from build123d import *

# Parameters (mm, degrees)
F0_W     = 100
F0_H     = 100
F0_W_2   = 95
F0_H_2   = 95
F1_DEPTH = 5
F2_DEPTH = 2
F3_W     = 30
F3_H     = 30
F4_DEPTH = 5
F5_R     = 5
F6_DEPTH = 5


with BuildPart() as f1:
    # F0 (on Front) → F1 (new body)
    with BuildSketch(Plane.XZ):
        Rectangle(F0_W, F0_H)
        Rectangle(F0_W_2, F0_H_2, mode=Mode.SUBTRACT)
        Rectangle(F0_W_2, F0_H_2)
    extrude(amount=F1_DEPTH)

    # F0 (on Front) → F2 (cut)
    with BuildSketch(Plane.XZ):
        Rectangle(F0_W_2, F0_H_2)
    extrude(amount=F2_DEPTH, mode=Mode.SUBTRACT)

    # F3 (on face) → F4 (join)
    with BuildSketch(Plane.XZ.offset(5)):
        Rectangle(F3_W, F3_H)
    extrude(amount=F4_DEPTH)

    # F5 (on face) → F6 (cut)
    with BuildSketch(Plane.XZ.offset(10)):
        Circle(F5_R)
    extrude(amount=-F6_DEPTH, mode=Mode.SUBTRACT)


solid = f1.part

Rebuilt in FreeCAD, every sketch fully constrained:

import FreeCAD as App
import Part
import Sketcher
Q = App.Units.Quantity

doc = App.newDocument("Part")
params = doc.addObject("Spreadsheet::Sheet", "Params")
for row, (alias, value) in enumerate([
    ("sketch1_width", "100 mm"),
    ("pad1_length", "5 mm"),
    ("sketch2_width", "95 mm"),
    ("pocket1_length", "2 mm"),
    ("sketch3_width", "30 mm"),
    ("pad2_length", "5 mm"),
    ("sketch4_diameter", "10 mm"),
    ("pocket2_length", "5 mm"),
], start=1):
    params.set(f"A{row}", alias)
    params.set(f"B{row}", "=" + value)
    params.setAlias(f"B{row}", alias)

body = doc.addObject("PartDesign::Body", "Body")

# Sketch on XZ plane
sketch1 = body.newObject("Sketcher::SketchObject", "Sketch")
sketch1.AttachmentSupport = (doc.getObject("XZ_Plane"), [""])
sketch1.MapMode = "FlatFace"
sketch1.addGeometry([
    Part.LineSegment(App.Vector(-50, 50, 0), App.Vector(-50, -50, 0)),
    Part.LineSegment(App.Vector(-50, -50, 0), App.Vector(50, -50, 0)),
    Part.LineSegment(App.Vector(50, -50, 0), App.Vector(50, 50, 0)),
    Part.LineSegment(App.Vector(50, 50, 0), App.Vector(-50, 50, 0)),
], False)
sketch1.addConstraint([
    Sketcher.Constraint("Coincident", 0, 2, 1, 1),
    Sketcher.Constraint("Coincident", 1, 2, 2, 1),
    Sketcher.Constraint("Coincident", 2, 2, 3, 1),
    Sketcher.Constraint("Coincident", 3, 2, 0, 1),
    Sketcher.Constraint("Vertical", 0),
    Sketcher.Constraint("Horizontal", 1),
    Sketcher.Constraint("Vertical", 2),
    Sketcher.Constraint("Horizontal", 3),
    Sketcher.Constraint("Symmetric", 0, 2, 2, 2, -1, 1),
    Sketcher.Constraint("Equal", 3, 0),
    Sketcher.Constraint("DistanceX", 1, 1, 1, 2, Q("100 mm")),
])
sketch1.setExpression("Constraints[10]", "Params.sketch1_width")
pad1 = body.newObject("PartDesign::Pad", "Pad")
pad1.Profile = sketch1
pad1.setExpression("Length", "Params.pad1_length")

# Sketch on XZ plane
sketch2 = body.newObject("Sketcher::SketchObject", "Sketch001")
sketch2.AttachmentSupport = (doc.getObject("XZ_Plane"), [""])
sketch2.MapMode = "FlatFace"
sketch2.addGeometry([
    Part.LineSegment(App.Vector(-47.5, 47.5, 0), App.Vector(-47.5, -47.5, 0)),
    Part.LineSegment(App.Vector(-47.5, -47.5, 0), App.Vector(47.5, -47.5, 0)),
    Part.LineSegment(App.Vector(47.5, -47.5, 0), App.Vector(47.5, 47.5, 0)),
    Part.LineSegment(App.Vector(47.5, 47.5, 0), App.Vector(-47.5, 47.5, 0)),
], False)
sketch2.addConstraint([
    Sketcher.Constraint("Coincident", 0, 2, 1, 1),
    Sketcher.Constraint("Coincident", 1, 2, 2, 1),
    Sketcher.Constraint("Coincident", 2, 2, 3, 1),
    Sketcher.Constraint("Coincident", 3, 2, 0, 1),
    Sketcher.Constraint("Vertical", 0),
    Sketcher.Constraint("Horizontal", 1),
    Sketcher.Constraint("Vertical", 2),
    Sketcher.Constraint("Horizontal", 3),
    Sketcher.Constraint("Symmetric", 0, 2, 2, 2, -1, 1),
    Sketcher.Constraint("Equal", 3, 0),
    Sketcher.Constraint("DistanceX", 1, 1, 1, 2, Q("95 mm")),
])
sketch2.setExpression("Constraints[10]", "Params.sketch2_width")
pocket1 = body.newObject("PartDesign::Pocket", "Pocket")
pocket1.Profile = sketch2
pocket1.setExpression("Length", "Params.pocket1_length")
pocket1.Reversed = True

# Sketch on XZ plane
sketch3 = body.newObject("Sketcher::SketchObject", "Sketch002")
sketch3.AttachmentSupport = (doc.getObject("XZ_Plane"), [""])
sketch3.MapMode = "FlatFace"
sketch3.AttachmentOffset = App.Placement(App.Vector(0, 0, 5), App.Rotation())
sketch3.addGeometry([
    Part.LineSegment(App.Vector(-15, 15, 0), App.Vector(-15, -15, 0)),
    Part.LineSegment(App.Vector(-15, -15, 0), App.Vector(15, -15, 0)),
    Part.LineSegment(App.Vector(15, -15, 0), App.Vector(15, 15, 0)),
    Part.LineSegment(App.Vector(15, 15, 0), App.Vector(-15, 15, 0)),
], False)
sketch3.addConstraint([
    Sketcher.Constraint("Coincident", 0, 2, 1, 1),
    Sketcher.Constraint("Coincident", 1, 2, 2, 1),
    Sketcher.Constraint("Coincident", 2, 2, 3, 1),
    Sketcher.Constraint("Coincident", 3, 2, 0, 1),
    Sketcher.Constraint("Vertical", 0),
    Sketcher.Constraint("Horizontal", 1),
    Sketcher.Constraint("Vertical", 2),
    Sketcher.Constraint("Horizontal", 3),
    Sketcher.Constraint("Symmetric", 0, 2, 2, 2, -1, 1),
    Sketcher.Constraint("Equal", 3, 0),
    Sketcher.Constraint("DistanceX", 1, 1, 1, 2, Q("30 mm")),
])
sketch3.setExpression("Constraints[10]", "Params.sketch3_width")
pad2 = body.newObject("PartDesign::Pad", "Pad001")
pad2.Profile = sketch3
pad2.setExpression("Length", "Params.pad2_length")

# Sketch on XZ plane
sketch4 = body.newObject("Sketcher::SketchObject", "Sketch003")
sketch4.AttachmentSupport = (doc.getObject("XZ_Plane"), [""])
sketch4.MapMode = "FlatFace"
sketch4.AttachmentOffset = App.Placement(App.Vector(0, 0, 10), App.Rotation())
sketch4.addGeometry(Part.Circle(App.Vector(0, 0, 0), App.Vector(0, 0, 1), 5), False)
sketch4.addConstraint([
    Sketcher.Constraint("Coincident", 0, 3, -1, 1),
    Sketcher.Constraint("Diameter", 0, Q("10 mm")),
])
sketch4.setExpression("Constraints[1]", "Params.sketch4_diameter")
pocket2 = body.newObject("PartDesign::Pocket", "Pocket001")
pocket2.Profile = sketch4
pocket2.setExpression("Length", "Params.pocket2_length")

doc.recompute()
